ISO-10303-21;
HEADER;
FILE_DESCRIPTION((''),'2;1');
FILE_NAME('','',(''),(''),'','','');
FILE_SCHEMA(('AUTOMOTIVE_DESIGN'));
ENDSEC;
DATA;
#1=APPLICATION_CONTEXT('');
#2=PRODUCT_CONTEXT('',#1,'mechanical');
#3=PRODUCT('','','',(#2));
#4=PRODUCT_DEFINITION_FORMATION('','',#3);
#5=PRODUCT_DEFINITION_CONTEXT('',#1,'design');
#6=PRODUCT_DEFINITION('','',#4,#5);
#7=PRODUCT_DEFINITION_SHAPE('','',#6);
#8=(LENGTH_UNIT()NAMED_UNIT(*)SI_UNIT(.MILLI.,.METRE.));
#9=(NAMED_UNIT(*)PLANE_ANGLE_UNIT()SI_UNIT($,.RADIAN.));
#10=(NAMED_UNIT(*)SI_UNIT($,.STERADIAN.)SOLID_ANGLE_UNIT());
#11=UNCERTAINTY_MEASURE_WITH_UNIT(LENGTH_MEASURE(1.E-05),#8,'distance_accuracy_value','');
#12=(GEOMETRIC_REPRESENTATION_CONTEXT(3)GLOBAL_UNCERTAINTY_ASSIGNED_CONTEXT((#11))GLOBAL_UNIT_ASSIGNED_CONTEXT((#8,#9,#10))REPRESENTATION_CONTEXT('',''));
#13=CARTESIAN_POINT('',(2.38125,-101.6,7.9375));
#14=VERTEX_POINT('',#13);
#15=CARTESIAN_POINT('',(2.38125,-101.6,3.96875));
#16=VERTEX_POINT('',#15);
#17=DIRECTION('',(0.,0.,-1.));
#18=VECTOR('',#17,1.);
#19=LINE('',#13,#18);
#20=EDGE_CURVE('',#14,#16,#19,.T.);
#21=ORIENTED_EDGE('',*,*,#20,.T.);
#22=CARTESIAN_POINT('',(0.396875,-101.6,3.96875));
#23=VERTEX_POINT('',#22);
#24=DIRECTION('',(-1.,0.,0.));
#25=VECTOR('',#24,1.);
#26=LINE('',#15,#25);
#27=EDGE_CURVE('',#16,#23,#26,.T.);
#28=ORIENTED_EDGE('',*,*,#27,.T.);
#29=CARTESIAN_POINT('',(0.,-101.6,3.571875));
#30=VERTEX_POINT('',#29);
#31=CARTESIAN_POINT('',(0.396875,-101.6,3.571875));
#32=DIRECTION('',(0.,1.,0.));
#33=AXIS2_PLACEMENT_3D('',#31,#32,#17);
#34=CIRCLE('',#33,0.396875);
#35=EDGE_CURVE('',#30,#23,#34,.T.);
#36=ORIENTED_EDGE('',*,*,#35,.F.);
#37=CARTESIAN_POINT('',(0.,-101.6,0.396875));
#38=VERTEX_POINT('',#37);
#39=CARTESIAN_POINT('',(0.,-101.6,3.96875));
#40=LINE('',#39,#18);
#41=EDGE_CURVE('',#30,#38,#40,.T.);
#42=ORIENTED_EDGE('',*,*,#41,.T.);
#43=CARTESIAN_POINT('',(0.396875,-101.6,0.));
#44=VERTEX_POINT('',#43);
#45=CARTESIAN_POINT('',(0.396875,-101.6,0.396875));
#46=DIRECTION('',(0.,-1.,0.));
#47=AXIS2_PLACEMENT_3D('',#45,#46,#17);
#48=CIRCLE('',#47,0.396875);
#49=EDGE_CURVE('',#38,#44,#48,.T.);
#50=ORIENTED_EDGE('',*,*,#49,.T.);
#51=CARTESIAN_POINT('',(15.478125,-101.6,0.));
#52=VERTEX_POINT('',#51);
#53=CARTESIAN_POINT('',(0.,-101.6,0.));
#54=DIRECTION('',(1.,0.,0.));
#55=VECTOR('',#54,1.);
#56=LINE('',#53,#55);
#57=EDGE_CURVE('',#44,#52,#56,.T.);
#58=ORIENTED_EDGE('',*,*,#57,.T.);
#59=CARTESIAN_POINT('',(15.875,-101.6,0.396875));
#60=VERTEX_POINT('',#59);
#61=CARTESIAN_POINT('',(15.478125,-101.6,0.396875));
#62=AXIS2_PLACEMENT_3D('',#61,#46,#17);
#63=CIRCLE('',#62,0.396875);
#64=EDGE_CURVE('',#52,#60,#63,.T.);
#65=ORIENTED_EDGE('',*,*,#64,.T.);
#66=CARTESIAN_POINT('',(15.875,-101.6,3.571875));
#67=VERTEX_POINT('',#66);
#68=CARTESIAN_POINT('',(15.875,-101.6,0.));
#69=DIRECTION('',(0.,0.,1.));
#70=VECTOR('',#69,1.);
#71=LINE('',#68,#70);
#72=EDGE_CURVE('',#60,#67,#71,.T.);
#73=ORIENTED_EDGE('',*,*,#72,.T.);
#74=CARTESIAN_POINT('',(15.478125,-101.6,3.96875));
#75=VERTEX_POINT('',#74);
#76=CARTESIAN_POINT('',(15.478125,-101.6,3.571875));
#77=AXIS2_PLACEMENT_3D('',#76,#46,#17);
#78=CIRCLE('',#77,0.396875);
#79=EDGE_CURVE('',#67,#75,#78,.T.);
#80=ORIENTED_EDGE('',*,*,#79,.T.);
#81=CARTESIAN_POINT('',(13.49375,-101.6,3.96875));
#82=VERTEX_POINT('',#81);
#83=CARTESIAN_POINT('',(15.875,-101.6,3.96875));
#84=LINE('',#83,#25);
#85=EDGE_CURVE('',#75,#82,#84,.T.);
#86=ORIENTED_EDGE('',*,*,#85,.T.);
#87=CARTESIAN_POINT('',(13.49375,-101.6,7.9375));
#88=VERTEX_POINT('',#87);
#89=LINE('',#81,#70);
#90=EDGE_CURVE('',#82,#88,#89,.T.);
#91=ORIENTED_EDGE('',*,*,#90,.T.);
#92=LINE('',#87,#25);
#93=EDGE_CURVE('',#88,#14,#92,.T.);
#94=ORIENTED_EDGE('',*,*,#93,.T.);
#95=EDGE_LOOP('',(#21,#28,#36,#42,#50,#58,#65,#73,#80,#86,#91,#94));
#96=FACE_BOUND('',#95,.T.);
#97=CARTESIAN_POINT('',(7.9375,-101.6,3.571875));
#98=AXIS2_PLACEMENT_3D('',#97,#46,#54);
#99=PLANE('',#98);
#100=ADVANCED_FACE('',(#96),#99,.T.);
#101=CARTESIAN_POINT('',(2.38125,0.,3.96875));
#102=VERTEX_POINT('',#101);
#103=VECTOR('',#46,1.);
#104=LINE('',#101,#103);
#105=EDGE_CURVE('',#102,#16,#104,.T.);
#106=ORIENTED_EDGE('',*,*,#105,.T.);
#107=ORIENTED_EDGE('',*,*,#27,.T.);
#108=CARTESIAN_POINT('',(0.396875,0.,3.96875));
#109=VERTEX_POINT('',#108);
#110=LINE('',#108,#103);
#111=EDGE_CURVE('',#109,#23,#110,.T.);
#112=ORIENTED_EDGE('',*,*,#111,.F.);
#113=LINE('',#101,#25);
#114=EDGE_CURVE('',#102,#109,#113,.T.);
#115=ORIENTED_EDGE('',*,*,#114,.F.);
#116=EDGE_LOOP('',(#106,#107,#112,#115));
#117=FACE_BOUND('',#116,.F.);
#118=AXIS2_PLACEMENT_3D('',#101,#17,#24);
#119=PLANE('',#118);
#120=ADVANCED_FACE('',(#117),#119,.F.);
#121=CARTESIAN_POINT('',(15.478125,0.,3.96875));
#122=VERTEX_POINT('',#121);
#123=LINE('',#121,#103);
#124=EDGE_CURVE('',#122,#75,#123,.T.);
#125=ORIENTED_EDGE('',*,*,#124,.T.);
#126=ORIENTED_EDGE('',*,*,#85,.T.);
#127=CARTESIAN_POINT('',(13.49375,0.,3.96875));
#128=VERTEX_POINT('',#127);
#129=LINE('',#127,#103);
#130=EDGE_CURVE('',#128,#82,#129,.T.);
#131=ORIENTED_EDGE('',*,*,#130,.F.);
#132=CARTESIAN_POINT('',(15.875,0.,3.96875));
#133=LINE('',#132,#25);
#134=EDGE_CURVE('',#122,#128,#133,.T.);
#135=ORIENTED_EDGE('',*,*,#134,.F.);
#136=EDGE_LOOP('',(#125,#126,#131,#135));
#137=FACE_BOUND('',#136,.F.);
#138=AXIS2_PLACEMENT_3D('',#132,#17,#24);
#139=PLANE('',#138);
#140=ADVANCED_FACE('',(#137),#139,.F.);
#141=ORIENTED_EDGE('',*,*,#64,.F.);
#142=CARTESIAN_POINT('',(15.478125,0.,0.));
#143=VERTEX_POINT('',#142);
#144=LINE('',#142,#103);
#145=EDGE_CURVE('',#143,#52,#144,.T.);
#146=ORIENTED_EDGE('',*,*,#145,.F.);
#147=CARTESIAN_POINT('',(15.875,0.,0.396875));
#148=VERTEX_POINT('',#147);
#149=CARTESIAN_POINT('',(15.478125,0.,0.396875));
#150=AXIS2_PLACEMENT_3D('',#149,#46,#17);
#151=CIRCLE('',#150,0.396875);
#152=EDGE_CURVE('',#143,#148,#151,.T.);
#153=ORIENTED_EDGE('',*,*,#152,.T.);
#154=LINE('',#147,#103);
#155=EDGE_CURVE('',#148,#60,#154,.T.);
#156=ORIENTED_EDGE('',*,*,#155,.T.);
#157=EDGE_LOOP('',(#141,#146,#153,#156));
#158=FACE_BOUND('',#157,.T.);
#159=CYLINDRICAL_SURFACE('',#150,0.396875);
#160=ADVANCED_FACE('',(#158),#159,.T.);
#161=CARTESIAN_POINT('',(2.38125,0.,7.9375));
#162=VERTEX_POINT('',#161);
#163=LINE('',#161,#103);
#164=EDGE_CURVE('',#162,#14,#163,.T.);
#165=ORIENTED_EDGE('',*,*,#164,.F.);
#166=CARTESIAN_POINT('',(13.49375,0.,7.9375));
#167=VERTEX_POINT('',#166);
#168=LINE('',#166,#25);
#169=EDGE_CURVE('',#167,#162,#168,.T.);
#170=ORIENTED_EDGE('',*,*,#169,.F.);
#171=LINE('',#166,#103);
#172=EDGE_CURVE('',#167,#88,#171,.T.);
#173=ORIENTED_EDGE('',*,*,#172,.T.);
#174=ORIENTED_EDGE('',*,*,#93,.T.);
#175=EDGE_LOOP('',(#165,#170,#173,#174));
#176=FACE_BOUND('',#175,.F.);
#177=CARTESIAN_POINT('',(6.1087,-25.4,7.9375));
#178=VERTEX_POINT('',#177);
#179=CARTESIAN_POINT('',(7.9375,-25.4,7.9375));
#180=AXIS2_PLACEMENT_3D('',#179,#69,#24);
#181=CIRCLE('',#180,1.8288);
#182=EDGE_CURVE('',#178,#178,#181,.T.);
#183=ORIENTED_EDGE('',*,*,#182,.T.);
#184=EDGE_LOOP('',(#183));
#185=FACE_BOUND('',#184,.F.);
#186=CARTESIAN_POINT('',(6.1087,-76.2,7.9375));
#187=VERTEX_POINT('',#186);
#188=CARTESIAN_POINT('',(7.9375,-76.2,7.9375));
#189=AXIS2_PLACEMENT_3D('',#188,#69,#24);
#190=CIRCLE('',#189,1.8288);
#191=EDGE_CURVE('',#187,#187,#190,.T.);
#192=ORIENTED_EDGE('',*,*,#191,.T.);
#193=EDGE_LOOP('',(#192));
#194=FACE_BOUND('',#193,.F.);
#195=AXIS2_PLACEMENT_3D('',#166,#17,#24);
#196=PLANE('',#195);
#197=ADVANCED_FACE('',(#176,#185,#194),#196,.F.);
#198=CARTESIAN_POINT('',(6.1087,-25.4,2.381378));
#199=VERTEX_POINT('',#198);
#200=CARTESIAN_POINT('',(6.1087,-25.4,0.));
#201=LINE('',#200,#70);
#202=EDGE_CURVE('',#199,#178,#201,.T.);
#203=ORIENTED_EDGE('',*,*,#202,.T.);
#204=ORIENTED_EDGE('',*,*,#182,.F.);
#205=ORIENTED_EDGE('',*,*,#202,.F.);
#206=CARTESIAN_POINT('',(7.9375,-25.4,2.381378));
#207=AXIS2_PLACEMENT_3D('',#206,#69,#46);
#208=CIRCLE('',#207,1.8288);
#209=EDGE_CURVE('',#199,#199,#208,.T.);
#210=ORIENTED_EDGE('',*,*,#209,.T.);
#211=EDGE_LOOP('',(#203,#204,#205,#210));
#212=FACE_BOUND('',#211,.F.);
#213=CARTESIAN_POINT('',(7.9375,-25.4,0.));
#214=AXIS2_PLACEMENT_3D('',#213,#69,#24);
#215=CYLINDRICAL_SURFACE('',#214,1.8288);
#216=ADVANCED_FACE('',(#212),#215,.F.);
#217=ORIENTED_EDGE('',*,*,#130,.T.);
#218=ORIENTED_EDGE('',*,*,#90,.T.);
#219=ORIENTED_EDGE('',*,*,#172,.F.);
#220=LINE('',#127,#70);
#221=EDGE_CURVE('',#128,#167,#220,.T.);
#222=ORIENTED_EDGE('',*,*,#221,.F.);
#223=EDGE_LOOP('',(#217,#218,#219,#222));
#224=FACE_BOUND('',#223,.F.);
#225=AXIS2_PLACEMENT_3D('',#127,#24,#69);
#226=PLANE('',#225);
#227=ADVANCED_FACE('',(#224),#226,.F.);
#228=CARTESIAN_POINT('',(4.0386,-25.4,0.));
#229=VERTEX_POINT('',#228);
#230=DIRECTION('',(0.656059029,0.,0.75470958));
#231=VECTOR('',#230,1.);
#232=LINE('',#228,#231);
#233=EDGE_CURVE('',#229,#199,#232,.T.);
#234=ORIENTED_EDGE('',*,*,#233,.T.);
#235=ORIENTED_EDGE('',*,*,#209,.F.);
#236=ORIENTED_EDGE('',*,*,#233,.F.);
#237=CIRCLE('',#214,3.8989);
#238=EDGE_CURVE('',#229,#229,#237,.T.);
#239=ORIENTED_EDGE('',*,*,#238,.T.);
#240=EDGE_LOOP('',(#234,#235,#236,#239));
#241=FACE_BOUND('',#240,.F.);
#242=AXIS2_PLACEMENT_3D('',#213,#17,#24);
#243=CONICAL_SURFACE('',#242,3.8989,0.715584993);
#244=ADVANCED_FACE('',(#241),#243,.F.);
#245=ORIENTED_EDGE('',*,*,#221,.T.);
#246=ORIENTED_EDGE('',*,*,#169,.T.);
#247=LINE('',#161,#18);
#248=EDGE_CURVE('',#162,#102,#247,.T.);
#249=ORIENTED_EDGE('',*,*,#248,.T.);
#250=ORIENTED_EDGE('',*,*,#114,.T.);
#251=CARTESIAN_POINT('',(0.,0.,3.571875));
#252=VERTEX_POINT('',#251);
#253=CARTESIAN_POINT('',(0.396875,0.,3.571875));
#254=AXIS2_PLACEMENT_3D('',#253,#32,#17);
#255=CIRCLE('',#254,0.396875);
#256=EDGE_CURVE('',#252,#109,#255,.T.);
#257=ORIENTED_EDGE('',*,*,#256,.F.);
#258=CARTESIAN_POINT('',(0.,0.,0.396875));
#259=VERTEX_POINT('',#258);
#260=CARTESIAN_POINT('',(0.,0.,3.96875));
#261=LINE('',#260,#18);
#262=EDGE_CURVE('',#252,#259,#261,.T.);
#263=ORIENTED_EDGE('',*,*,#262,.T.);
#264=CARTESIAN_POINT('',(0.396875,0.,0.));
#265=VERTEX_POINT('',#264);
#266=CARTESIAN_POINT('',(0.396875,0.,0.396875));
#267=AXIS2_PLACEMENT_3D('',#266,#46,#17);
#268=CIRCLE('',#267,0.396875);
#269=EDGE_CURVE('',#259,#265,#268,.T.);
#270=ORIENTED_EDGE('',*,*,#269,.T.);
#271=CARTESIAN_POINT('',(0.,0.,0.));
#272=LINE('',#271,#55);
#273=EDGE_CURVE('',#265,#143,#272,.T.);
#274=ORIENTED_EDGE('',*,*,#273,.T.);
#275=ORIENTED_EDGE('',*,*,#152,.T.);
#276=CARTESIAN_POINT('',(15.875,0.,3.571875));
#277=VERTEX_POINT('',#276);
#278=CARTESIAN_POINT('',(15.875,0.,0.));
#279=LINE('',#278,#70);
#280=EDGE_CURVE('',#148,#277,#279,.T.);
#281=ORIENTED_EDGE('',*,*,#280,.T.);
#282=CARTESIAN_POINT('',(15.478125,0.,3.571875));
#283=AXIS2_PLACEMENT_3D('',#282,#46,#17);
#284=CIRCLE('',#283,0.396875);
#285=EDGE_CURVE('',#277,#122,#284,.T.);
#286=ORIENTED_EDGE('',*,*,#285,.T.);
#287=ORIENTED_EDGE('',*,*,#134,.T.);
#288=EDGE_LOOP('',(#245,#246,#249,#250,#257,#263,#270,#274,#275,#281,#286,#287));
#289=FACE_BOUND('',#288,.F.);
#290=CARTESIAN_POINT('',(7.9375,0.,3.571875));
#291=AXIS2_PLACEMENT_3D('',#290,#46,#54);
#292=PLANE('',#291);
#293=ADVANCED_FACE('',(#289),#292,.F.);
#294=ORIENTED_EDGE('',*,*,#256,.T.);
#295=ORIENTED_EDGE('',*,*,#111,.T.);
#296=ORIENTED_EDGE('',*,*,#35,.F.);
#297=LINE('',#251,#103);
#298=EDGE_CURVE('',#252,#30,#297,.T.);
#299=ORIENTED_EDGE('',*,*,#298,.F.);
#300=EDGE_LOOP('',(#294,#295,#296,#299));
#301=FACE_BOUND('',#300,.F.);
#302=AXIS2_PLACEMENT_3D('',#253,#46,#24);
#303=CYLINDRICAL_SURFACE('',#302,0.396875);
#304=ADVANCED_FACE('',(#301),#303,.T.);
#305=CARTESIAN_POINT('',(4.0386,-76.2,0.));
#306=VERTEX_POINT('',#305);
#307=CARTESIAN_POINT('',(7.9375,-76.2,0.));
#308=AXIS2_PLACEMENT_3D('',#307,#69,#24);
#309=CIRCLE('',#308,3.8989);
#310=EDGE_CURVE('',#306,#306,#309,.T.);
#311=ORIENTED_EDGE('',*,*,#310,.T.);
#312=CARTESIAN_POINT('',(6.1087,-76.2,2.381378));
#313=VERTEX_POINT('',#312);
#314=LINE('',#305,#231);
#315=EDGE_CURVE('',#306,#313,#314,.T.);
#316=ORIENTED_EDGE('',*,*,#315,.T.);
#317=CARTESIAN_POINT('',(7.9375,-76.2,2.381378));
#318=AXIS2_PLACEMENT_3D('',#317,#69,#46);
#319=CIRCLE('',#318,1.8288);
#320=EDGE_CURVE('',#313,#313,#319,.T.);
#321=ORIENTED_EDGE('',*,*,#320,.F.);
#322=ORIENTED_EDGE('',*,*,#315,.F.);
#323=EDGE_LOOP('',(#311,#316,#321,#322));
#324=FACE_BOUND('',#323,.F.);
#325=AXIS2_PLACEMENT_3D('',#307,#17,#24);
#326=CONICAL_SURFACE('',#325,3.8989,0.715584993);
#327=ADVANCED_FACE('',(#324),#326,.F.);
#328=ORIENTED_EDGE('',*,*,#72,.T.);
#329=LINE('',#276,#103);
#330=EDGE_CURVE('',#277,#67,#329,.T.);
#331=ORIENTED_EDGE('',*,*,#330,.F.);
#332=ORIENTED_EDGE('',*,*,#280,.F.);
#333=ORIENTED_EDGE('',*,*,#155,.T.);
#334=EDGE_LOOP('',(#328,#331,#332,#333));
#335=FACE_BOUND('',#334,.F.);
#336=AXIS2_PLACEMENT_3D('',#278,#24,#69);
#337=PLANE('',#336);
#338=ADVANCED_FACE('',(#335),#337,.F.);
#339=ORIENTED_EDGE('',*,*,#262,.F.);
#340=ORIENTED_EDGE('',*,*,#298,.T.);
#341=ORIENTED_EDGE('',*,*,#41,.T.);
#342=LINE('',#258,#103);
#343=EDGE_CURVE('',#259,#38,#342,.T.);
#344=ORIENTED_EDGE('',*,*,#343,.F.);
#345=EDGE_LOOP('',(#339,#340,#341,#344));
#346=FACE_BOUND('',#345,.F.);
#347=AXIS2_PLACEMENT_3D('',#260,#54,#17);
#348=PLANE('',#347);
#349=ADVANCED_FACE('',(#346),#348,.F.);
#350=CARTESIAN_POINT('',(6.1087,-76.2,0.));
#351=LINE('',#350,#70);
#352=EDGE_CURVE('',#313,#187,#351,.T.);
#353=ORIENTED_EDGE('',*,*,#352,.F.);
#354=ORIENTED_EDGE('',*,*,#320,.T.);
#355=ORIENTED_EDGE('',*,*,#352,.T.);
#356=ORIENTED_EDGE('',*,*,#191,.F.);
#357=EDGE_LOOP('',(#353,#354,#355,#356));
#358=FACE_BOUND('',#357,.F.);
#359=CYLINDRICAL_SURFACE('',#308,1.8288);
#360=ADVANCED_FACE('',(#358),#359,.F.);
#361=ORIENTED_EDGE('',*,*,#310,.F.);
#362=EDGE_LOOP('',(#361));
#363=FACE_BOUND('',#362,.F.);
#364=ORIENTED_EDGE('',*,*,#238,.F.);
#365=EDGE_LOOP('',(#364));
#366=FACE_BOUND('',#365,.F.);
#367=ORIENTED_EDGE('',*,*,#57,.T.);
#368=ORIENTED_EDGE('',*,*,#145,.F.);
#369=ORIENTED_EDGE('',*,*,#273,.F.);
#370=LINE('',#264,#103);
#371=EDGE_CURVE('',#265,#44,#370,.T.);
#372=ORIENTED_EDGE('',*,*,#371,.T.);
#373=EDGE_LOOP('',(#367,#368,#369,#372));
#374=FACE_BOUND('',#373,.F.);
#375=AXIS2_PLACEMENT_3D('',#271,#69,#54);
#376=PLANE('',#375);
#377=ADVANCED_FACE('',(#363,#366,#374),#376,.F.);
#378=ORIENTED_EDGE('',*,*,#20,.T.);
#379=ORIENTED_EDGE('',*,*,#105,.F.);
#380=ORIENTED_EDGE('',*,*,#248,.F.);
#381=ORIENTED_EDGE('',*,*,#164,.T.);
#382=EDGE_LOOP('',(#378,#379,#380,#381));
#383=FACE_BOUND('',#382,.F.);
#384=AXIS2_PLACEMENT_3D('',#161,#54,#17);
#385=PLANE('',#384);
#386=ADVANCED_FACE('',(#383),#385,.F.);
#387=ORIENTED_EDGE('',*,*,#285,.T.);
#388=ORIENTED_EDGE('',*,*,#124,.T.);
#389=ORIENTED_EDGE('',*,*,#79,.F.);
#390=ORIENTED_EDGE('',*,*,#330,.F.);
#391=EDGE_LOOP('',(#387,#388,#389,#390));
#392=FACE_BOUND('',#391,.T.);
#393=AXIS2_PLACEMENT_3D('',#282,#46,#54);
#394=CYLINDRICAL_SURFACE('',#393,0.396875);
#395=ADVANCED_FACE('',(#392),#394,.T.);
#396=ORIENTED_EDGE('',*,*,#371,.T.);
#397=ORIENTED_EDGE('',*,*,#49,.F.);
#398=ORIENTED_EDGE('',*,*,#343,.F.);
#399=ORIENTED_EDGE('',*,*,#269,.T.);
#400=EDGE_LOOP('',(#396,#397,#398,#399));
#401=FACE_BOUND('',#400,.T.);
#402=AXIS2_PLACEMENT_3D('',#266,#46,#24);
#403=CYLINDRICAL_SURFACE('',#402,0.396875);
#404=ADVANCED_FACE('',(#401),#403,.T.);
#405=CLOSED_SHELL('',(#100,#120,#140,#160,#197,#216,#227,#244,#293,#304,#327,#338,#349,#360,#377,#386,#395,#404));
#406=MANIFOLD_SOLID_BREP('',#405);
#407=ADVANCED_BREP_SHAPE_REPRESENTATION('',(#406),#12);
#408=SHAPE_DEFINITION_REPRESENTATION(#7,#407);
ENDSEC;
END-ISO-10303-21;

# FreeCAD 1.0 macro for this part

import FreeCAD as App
import Part
import Sketcher
Q = App.Units.Quantity


def edges_at(feature, points):
    """Names of the edges that pass closest to the given points."""
    edges = feature.Shape.Edges
    near = lambda p: min(range(len(edges)), key=lambda i: edges[i].distToShape(Part.Vertex(*p))[0])
    return sorted({f"Edge{near(p) + 1}" for p in points})


def add_polygon(sketch, points):
    """Adds a closed chain of lines whose ends are joined by coincident constraints."""
    first, n = sketch.GeometryCount, len(points)
    for a, b in zip(points, points[1:] + points[:1]):
        sketch.addGeometry(Part.LineSegment(App.Vector(*a, 0), App.Vector(*b, 0)), False)
    for i in range(n):
        sketch.addConstraint(Sketcher.Constraint("Coincident", first + i, 2, first + (i + 1) % n, 1))

doc = App.newDocument("Part")
params = doc.addObject("Spreadsheet::Sheet", "Params")
for row, (alias, value) in enumerate([
    ("sketch1_width", "0.625 in"),
    ("sketch1_width2", "0.09375 in"),
    ("sketch1_height", "0.15625 in"),
    ("pad1_length", "4 in"),
    ("fillet_radius", "0.015625 in"),
    ("sketch2_diameter", "0.144 in"),
    ("hole_diameter", "0.144 in"),
    ("hole_csink_diameter", "0.307 in"),
], start=1):
    params.set(f"A{row}", alias)
    params.set(f"B{row}", "=" + value)
    params.setAlias(f"B{row}", alias)

body = doc.addObject("PartDesign::Body", "Body")

sketch1 = body.newObject("Sketcher::SketchObject", "Sketch")
sketch1.AttachmentSupport = (doc.getObject("XZ_Plane"), [""])
sketch1.MapMode = "FlatFace"
add_polygon(sketch1, [(0, 4), (0, 0), (15.9, 0), (15.9, 4), (13.5, 4), (13.5, 7.9), (2.4, 7.9), (2.4, 4)])
sketch1.addConstraint([
    Sketcher.Constraint("Vertical", 0),
    Sketcher.Constraint("Horizontal", 1),
    Sketcher.Constraint("Vertical", 2),
    Sketcher.Constraint("Horizontal", 3),
    Sketcher.Constraint("Vertical", 4),
    Sketcher.Constraint("Horizontal", 5),
    Sketcher.Constraint("Vertical", 6),
    Sketcher.Constraint("Horizontal", 7),
    Sketcher.Constraint("Coincident", 0, 2, -1, 1),
    Sketcher.Constraint("Horizontal", 3, 2, 6, 2),
    Sketcher.Constraint("Equal", 3, 7),
    Sketcher.Constraint("Equal", 2, 4),
    Sketcher.Constraint("DistanceX", 1, 1, 1, 2, Q("0.625 in")),
    Sketcher.Constraint("DistanceX", 3, 2, 3, 1, Q("0.09375 in")),
    Sketcher.Constraint("DistanceY", 0, 2, 0, 1, Q("0.15625 in")),
])
sketch1.setExpression("Constraints[20]", "Params.sketch1_width")
sketch1.setExpression("Constraints[21]", "Params.sketch1_width2")
sketch1.setExpression("Constraints[22]", "Params.sketch1_height")
pad1 = body.newObject("PartDesign::Pad", "Pad")
pad1.Profile = sketch1
pad1.setExpression("Length", "Params.pad1_length")
doc.recompute()

fillet = body.newObject("PartDesign::Fillet", "Fillet")
fillet.Base = (pad1, edges_at(pad1, [
    (15.875, -50.8, 3.969),
    (15.875, -50.8, 0),
    (0, -50.8, 3.969),
    (0, -50.8, 0),
]))
fillet.setExpression("Radius", "Params.fillet_radius")

sketch2 = body.newObject("Sketcher::SketchObject", "Sketch001")
sketch2.AttachmentSupport = (doc.getObject("XY_Plane"), [""])
sketch2.MapMode = "FlatFace"
sketch2.addGeometry([
    Part.Circle(App.Vector(7.9, -76.2, 0), App.Vector(0, 0, 1), 1.8),
    Part.Circle(App.Vector(7.9, -25.4, 0), App.Vector(0, 0, 1), 1.8),
], False)
sketch2.addConstraint([
    Sketcher.Constraint("Equal", 0, 1),
    Sketcher.Constraint("Vertical", 0, 3, 1, 3),
    Sketcher.Constraint("Diameter", 0, Q("0.144 in")),
    Sketcher.Constraint("DistanceY", 0, 3, -1, 1, Q("3 in")),
    Sketcher.Constraint("DistanceY", 1, 3, -1, 1, Q("1 in")),
    Sketcher.Constraint("DistanceX", -1, 1, 0, 3, Q("0.3125 in")),
])
sketch2.setExpression("Constraints[2]", "Params.sketch2_diameter")
doc.recompute()
hole = body.newObject("PartDesign::Hole", "Hole")
hole.Profile = sketch2
hole.ThreadType = "None"
hole.setExpression("Diameter", "Params.hole_diameter")
hole.DepthType = "ThroughAll"
hole.HoleCutType = "Countersink"
hole.setExpression("HoleCutDiameter", "Params.hole_csink_diameter")
hole.HoleCutCountersinkAngle = 82
hole.Reversed = True

doc.recompute()
